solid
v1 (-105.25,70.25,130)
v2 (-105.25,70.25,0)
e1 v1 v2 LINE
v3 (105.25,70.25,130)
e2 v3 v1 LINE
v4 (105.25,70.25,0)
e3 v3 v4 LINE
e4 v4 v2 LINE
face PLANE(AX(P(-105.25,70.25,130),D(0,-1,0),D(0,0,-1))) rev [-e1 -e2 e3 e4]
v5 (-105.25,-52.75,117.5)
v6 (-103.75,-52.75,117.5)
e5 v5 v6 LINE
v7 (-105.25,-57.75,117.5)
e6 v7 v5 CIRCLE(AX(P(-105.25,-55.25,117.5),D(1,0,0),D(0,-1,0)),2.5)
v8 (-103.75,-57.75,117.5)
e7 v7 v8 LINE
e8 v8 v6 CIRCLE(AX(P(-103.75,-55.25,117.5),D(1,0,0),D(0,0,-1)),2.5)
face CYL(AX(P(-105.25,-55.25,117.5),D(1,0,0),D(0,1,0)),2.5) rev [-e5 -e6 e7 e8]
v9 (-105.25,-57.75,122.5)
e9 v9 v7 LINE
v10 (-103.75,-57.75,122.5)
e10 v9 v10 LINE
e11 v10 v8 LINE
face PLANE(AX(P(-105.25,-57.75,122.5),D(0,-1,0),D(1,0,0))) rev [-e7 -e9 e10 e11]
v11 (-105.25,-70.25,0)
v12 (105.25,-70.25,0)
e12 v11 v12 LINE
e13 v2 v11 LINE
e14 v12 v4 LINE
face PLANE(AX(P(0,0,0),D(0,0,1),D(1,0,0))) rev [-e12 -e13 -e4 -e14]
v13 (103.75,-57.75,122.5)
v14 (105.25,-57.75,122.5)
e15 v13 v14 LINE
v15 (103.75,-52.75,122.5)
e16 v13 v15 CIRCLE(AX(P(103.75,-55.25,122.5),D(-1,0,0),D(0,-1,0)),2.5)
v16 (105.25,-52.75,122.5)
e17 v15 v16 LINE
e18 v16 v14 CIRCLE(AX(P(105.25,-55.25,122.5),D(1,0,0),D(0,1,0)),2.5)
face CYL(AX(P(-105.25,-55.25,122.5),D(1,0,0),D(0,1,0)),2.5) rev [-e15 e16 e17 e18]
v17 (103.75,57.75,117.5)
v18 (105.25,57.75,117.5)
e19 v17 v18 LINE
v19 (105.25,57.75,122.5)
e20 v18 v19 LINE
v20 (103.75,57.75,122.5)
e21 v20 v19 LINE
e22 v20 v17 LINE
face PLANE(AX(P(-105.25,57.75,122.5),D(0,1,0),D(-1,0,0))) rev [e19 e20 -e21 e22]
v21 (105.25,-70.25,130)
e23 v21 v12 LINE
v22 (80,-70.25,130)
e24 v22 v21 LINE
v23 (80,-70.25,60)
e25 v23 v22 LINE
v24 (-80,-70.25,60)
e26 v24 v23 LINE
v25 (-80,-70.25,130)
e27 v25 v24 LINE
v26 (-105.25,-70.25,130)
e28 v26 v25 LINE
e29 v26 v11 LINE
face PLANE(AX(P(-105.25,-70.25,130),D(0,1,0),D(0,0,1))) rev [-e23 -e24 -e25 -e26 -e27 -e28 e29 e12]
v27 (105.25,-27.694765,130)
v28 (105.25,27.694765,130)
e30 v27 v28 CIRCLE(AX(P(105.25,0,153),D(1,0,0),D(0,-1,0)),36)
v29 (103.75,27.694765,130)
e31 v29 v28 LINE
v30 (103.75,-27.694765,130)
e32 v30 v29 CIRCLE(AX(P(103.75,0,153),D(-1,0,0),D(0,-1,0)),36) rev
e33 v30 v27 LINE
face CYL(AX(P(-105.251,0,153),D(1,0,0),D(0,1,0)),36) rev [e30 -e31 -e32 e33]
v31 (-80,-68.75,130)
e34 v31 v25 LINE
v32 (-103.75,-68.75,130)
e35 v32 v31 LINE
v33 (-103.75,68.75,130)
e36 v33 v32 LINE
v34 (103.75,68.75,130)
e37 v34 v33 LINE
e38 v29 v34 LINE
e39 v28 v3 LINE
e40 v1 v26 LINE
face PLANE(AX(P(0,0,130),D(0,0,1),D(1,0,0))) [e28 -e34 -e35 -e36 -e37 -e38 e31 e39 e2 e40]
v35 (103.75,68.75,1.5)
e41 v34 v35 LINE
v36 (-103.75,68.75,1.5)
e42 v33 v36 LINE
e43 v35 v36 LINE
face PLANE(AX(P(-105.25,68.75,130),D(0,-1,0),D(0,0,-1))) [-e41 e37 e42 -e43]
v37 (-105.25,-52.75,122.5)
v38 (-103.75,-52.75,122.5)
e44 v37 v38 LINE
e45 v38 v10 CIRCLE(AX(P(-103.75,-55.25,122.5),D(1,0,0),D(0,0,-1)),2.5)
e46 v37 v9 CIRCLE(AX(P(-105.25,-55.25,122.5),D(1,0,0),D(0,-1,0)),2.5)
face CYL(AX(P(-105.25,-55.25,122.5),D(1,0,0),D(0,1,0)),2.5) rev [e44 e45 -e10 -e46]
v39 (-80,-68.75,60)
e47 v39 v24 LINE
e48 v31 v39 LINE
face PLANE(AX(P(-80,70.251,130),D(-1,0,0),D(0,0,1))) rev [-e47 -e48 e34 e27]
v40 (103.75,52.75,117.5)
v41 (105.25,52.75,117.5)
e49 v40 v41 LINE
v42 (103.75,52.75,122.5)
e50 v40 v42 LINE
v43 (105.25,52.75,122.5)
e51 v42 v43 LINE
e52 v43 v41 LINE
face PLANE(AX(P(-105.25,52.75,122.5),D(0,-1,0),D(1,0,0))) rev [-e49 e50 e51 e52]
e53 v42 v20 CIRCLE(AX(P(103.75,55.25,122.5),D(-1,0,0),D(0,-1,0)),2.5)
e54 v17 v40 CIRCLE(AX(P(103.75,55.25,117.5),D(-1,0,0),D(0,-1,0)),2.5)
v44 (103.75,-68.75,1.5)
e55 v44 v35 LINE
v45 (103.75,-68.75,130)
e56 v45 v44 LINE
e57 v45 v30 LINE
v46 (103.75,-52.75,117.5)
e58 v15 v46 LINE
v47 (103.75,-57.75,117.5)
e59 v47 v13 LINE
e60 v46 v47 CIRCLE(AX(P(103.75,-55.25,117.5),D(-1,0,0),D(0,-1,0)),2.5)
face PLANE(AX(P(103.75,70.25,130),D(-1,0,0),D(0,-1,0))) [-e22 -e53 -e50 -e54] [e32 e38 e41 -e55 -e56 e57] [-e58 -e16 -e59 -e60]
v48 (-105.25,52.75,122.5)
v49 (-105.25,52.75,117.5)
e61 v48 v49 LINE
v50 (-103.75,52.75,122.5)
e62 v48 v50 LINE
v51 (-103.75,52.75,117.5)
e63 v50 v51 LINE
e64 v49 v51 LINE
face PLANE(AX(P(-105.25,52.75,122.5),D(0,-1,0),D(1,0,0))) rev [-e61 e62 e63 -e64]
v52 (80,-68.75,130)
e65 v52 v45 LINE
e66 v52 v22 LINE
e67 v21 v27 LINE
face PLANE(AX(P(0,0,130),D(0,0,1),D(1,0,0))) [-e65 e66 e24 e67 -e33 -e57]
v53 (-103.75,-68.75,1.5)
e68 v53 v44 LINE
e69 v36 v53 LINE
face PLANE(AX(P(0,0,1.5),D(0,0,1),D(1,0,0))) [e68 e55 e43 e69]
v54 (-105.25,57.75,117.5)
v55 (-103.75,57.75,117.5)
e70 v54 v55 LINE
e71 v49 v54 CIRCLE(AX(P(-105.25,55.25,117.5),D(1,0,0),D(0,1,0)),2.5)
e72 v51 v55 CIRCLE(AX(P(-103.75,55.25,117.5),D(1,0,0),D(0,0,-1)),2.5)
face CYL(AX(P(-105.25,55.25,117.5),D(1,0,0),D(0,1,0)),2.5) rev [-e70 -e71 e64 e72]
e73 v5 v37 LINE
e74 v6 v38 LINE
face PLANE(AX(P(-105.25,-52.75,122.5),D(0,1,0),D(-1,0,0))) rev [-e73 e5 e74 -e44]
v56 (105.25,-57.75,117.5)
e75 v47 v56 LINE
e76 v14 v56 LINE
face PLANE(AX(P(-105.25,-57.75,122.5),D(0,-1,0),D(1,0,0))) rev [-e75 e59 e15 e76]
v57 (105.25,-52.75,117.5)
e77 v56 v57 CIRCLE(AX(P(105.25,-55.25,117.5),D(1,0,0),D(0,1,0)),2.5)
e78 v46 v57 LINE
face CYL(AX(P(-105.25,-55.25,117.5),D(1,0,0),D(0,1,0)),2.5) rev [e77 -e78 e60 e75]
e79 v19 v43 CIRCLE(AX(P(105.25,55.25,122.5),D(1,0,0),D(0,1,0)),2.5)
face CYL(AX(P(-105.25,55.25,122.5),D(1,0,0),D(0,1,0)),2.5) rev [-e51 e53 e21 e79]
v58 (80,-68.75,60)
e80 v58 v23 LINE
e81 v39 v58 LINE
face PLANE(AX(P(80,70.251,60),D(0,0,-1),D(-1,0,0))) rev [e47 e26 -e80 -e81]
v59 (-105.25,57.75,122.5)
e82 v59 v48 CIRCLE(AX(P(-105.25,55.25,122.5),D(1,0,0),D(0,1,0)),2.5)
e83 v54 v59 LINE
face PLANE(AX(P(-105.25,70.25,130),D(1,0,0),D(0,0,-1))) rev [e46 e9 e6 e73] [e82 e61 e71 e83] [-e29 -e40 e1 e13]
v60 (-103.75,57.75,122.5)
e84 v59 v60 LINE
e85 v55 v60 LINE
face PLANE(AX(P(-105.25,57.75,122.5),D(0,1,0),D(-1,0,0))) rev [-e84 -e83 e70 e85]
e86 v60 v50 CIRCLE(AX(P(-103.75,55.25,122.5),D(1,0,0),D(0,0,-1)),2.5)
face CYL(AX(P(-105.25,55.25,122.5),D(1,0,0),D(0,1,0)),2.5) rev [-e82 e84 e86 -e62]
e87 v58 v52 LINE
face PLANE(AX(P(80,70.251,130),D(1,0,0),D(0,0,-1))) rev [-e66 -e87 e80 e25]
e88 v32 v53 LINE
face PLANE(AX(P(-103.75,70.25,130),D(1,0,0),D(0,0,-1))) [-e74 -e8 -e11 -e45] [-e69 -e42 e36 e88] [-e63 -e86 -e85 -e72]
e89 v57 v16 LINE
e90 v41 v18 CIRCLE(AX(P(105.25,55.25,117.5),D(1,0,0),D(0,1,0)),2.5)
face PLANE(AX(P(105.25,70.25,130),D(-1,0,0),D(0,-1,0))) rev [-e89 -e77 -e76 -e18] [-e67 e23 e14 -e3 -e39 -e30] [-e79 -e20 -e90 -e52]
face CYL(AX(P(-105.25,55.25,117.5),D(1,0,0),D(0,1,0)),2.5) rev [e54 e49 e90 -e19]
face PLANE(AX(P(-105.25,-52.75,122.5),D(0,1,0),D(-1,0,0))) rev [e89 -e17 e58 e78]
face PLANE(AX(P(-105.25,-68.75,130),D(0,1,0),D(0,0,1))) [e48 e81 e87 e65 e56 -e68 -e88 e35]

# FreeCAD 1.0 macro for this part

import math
import FreeCAD as App
import Part
import Sketcher

V = App.Vector


def faces_at(feature, points):
    """Names of the faces that lie closest to the given points."""
    faces = feature.Shape.Faces
    near = lambda p: min(range(len(faces)), key=lambda i: faces[i].distToShape(Part.Vertex(*p))[0])
    return sorted({f"Face{near(p) + 1}" for p in points})

doc = App.newDocument("Part")
body = doc.addObject("PartDesign::Body", "Body")

# Sketch on XY plane
sketch1 = body.newObject("Sketcher::SketchObject", "Sketch")
sketch1.AttachmentSupport = (doc.getObject("XY_Plane"), [""])
sketch1.MapMode = "FlatFace"
sketch1.addGeometry([
    Part.LineSegment(V(-105, 70, 0), V(-105, -70, 0)),
    Part.LineSegment(V(-105, -70, 0), V(105, -70, 0)),
    Part.LineSegment(V(105, -70, 0), V(105, 70, 0)),
    Part.LineSegment(V(105, 70, 0), V(-105, 70, 0)),
], False)
sketch1.addConstraint([
    Sketcher.Constraint("Coincident", 0, 2, 1, 1),
    Sketcher.Constraint("Coincident", 1, 2, 2, 1),
    Sketcher.Constraint("Coincident", 2, 2, 3, 1),
    Sketcher.Constraint("Coincident", 3, 2, 0, 1),
    Sketcher.Constraint("Vertical", 0),
    Sketcher.Constraint("Horizontal", 1),
    Sketcher.Constraint("Vertical", 2),
    Sketcher.Constraint("Horizontal", 3),
    Sketcher.Constraint("Symmetric", 0, 2, 2, 2, -1, 1),
    Sketcher.Constraint("DistanceX", 1, 1, 1, 2, 210.5),
    Sketcher.Constraint("DistanceY", 0, 2, 0, 1, 140.5),
])
pad1 = body.newObject("PartDesign::Pad", "Pad")
pad1.Profile = sketch1
pad1.Length = 130
doc.recompute()

thickness = body.newObject("PartDesign::Thickness", "Thickness")
thickness.Base = (pad1, faces_at(pad1, [(0, 0, 130)]))
thickness.Value = 1.5
thickness.Reversed = True
thickness.Join = "Intersection"

# Sketch on YZ plane
sketch2 = body.newObject("Sketcher::SketchObject", "Sketch001")
sketch2.AttachmentSupport = (doc.getObject("YZ_Plane"), [""])
sketch2.MapMode = "FlatFace"
sketch2.AttachmentOffset = App.Placement(V(0, 0, 105.25), App.Rotation())
sketch2.addGeometry([
    Part.LineSegment(V(28, 130, 0), V(-28, 130, 0)),
    Part.ArcOfCircle(Part.Circle(V(0, 153, 0), V(0, 0, 1), 36), math.radians(-140), math.radians(-40)),
], False)
sketch2.addConstraint([
    Sketcher.Constraint("Coincident", 0, 1, 1, 2),
    Sketcher.Constraint("Coincident", 1, 1, 0, 2),
    Sketcher.Constraint("Horizontal", 0),
    Sketcher.Constraint("PointOnObject", 1, 3, -2),
    Sketcher.Constraint("Radius", 1, 36.0),
    Sketcher.Constraint("DistanceY", -1, 1, 1, 3, 153.0),
    Sketcher.Constraint("DistanceY", -1, 1, 0, 1, 130.0),
])
pocket1 = body.newObject("PartDesign::Pocket", "Pocket")
pocket1.Profile = sketch2
pocket1.Type = "UpToFirst"

# Sketch on XZ plane
sketch3 = body.newObject("Sketcher::SketchObject", "Sketch002")
sketch3.AttachmentSupport = (doc.getObject("XZ_Plane"), [""])
sketch3.MapMode = "FlatFace"
sketch3.AttachmentOffset = App.Placement(V(0, 0, 70.25), App.Rotation())
sketch3.addGeometry([
    Part.LineSegment(V(-80, 130, 0), V(-80, 60, 0)),
    Part.LineSegment(V(-80, 60, 0), V(80, 60, 0)),
    Part.LineSegment(V(80, 60, 0), V(80, 130, 0)),
    Part.LineSegment(V(80, 130, 0), V(-80, 130, 0)),
], False)
sketch3.addConstraint([
    Sketcher.Constraint("Coincident", 0, 2, 1, 1),
    Sketcher.Constraint("Coincident", 1, 2, 2, 1),
    Sketcher.Constraint("Coincident", 2, 2, 3, 1),
    Sketcher.Constraint("Coincident", 3, 2, 0, 1),
    Sketcher.Constraint("Vertical", 0),
    Sketcher.Constraint("Horizontal", 1),
    Sketcher.Constraint("Vertical", 2),
    Sketcher.Constraint("Horizontal", 3),
    Sketcher.Constraint("DistanceX", 1, 1, 1, 2, 160.0),
    Sketcher.Constraint("DistanceY", 0, 2, 0, 1, 70.0),
    Sketcher.Constraint("DistanceX", 0, 2, -1, 1, 80.0),
    Sketcher.Constraint("DistanceY", -1, 1, 0, 2, 60.0),
])
pocket2 = body.newObject("PartDesign::Pocket", "Pocket001")
pocket2.Profile = sketch3
pocket2.Type = "UpToFirst"

# Sketch on YZ plane
sketch4 = body.newObject("Sketcher::SketchObject", "Sketch003")
sketch4.AttachmentSupport = (doc.getObject("YZ_Plane"), [""])
sketch4.MapMode = "FlatFace"
sketch4.AttachmentOffset = App.Placement(V(0, 0, 105.25), App.Rotation())
sketch4.addGeometry([
    Part.LineSegment(V(57.8, 117.5, 0), V(57.8, 122.5, 0)),  # 0
    Part.ArcOfCircle(Part.Circle(V(55.2, 122.5, 0), V(0, 0, 1), 2.5), math.radians(0), math.radians(180)),  # 1
    Part.LineSegment(V(52.8, 122.5, 0), V(52.8, 117.5, 0)),  # 2
    Part.ArcOfCircle(Part.Circle(V(55.2, 117.5, 0), V(0, 0, 1), 2.5), math.radians(180), math.radians(360)),  # 3
    Part.LineSegment(V(-57.8, 122.5, 0), V(-57.8, 117.5, 0)),  # 4
    Part.ArcOfCircle(Part.Circle(V(-55.2, 117.5, 0), V(0, 0, 1), 2.5), math.radians(180), math.radians(360)),  # 5
    Part.LineSegment(V(-52.8, 117.5, 0), V(-52.8, 122.5, 0)),  # 6
    Part.ArcOfCircle(Part.Circle(V(-55.2, 122.5, 0), V(0, 0, 1), 2.5), math.radians(0), math.radians(180)),  # 7
], False)
sketch4.addConstraint([
    Sketcher.Constraint("Tangent", 0, 2, 1, 1),
    Sketcher.Constraint("Tangent", 1, 2, 2, 1),
    Sketcher.Constraint("Tangent", 2, 2, 3, 1),
    Sketcher.Constraint("Tangent", 3, 2, 0, 1),
    Sketcher.Constraint("Tangent", 4, 2, 5, 1),
    Sketcher.Constraint("Tangent", 5, 2, 6, 1),
    Sketcher.Constraint("Tangent", 6, 2, 7, 1),
    Sketcher.Constraint("Tangent", 7, 2, 4, 1),
    Sketcher.Constraint("Vertical", 0),
    Sketcher.Constraint("Vertical", 2),
    Sketcher.Constraint("Vertical", 4),
    Sketcher.Constraint("Vertical", 6),
    Sketcher.Constraint("Equal", 3, 5),
    Sketcher.Constraint("Symmetric", 3, 3, 5, 3, -2),
    Sketcher.Constraint("Horizontal", 1, 3, 7, 3),
    Sketcher.Constraint("Radius", 1, 2.5),
    Sketcher.Constraint("DistanceY", 0, 1, 0, 2, 5.0),
    Sketcher.Constraint("DistanceX", 7, 3, 0, 2, 113.0),
    Sketcher.Constraint("DistanceY", -1, 1, 1, 3, 122.5),
])
pocket3 = body.newObject("PartDesign::Pocket", "Pocket002")
pocket3.Profile = sketch4
pocket3.Type = "ThroughAll"
pocket3.Midplane = True

doc.recompute()
